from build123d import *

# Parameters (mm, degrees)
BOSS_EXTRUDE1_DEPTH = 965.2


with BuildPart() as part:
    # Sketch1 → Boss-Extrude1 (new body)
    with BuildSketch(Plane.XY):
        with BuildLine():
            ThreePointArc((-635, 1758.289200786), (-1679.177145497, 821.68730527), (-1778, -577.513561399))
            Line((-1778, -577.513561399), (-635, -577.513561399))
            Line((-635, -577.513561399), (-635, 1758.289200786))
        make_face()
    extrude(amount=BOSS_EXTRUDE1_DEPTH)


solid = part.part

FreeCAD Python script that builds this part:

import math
import FreeCAD as App
import Part
import Sketcher

V = App.Vector
Q = App.Units.Quantity

doc = App.newDocument("Part")
body = doc.addObject("PartDesign::Body", "Body")

# Sketch on XY plane
sketch1 = body.newObject("Sketcher::SketchObject", "Sketch")
sketch1.AttachmentSupport = (doc.getObject("XY_Plane"), [""])
sketch1.MapMode = "FlatFace"
sketch1.addGeometry(Part.ArcOfCircle(Part.Circle(V(0, 0, 0), V(0, 0, 1), 1869.44), math.radians(109.857008), math.radians(197.994355)), False)
sketch1.addGeometry(Part.LineSegment(V(-1778, -577.513561, 0), V(-635, -577.513561, 0)), False)
sketch1.addGeometry(Part.LineSegment(V(-635, -577.513561, 0), V(-635, 1758.289201, 0)), False)
sketch1.addConstraint(Sketcher.Constraint("Coincident", 0, 2, 1, 1))
sketch1.addConstraint(Sketcher.Constraint("Coincident", 1, 2, 2, 1))
sketch1.addConstraint(Sketcher.Constraint("Coincident", 2, 2, 0, 1))
sketch1.addConstraint(Sketcher.Constraint("Horizontal", 1))
sketch1.addConstraint(Sketcher.Constraint("Vertical", 2))
sketch1.addConstraint(Sketcher.Constraint("Coincident", 0, 3, -1, 1))
sketch1.addConstraint(Sketcher.Constraint("Radius", 0, Q("73.6 in")))
sketch1.addConstraint(Sketcher.Constraint("DistanceX", 1, 1, 1, 2, Q("45 in")))
sketch1.addConstraint(Sketcher.Constraint("DistanceX", 1, 2, -1, 1, Q("25 in")))
pad1 = body.newObject("PartDesign::Pad", "Pad")
pad1.Profile = sketch1
pad1.Length = Q("38 in")

doc.recompute()
